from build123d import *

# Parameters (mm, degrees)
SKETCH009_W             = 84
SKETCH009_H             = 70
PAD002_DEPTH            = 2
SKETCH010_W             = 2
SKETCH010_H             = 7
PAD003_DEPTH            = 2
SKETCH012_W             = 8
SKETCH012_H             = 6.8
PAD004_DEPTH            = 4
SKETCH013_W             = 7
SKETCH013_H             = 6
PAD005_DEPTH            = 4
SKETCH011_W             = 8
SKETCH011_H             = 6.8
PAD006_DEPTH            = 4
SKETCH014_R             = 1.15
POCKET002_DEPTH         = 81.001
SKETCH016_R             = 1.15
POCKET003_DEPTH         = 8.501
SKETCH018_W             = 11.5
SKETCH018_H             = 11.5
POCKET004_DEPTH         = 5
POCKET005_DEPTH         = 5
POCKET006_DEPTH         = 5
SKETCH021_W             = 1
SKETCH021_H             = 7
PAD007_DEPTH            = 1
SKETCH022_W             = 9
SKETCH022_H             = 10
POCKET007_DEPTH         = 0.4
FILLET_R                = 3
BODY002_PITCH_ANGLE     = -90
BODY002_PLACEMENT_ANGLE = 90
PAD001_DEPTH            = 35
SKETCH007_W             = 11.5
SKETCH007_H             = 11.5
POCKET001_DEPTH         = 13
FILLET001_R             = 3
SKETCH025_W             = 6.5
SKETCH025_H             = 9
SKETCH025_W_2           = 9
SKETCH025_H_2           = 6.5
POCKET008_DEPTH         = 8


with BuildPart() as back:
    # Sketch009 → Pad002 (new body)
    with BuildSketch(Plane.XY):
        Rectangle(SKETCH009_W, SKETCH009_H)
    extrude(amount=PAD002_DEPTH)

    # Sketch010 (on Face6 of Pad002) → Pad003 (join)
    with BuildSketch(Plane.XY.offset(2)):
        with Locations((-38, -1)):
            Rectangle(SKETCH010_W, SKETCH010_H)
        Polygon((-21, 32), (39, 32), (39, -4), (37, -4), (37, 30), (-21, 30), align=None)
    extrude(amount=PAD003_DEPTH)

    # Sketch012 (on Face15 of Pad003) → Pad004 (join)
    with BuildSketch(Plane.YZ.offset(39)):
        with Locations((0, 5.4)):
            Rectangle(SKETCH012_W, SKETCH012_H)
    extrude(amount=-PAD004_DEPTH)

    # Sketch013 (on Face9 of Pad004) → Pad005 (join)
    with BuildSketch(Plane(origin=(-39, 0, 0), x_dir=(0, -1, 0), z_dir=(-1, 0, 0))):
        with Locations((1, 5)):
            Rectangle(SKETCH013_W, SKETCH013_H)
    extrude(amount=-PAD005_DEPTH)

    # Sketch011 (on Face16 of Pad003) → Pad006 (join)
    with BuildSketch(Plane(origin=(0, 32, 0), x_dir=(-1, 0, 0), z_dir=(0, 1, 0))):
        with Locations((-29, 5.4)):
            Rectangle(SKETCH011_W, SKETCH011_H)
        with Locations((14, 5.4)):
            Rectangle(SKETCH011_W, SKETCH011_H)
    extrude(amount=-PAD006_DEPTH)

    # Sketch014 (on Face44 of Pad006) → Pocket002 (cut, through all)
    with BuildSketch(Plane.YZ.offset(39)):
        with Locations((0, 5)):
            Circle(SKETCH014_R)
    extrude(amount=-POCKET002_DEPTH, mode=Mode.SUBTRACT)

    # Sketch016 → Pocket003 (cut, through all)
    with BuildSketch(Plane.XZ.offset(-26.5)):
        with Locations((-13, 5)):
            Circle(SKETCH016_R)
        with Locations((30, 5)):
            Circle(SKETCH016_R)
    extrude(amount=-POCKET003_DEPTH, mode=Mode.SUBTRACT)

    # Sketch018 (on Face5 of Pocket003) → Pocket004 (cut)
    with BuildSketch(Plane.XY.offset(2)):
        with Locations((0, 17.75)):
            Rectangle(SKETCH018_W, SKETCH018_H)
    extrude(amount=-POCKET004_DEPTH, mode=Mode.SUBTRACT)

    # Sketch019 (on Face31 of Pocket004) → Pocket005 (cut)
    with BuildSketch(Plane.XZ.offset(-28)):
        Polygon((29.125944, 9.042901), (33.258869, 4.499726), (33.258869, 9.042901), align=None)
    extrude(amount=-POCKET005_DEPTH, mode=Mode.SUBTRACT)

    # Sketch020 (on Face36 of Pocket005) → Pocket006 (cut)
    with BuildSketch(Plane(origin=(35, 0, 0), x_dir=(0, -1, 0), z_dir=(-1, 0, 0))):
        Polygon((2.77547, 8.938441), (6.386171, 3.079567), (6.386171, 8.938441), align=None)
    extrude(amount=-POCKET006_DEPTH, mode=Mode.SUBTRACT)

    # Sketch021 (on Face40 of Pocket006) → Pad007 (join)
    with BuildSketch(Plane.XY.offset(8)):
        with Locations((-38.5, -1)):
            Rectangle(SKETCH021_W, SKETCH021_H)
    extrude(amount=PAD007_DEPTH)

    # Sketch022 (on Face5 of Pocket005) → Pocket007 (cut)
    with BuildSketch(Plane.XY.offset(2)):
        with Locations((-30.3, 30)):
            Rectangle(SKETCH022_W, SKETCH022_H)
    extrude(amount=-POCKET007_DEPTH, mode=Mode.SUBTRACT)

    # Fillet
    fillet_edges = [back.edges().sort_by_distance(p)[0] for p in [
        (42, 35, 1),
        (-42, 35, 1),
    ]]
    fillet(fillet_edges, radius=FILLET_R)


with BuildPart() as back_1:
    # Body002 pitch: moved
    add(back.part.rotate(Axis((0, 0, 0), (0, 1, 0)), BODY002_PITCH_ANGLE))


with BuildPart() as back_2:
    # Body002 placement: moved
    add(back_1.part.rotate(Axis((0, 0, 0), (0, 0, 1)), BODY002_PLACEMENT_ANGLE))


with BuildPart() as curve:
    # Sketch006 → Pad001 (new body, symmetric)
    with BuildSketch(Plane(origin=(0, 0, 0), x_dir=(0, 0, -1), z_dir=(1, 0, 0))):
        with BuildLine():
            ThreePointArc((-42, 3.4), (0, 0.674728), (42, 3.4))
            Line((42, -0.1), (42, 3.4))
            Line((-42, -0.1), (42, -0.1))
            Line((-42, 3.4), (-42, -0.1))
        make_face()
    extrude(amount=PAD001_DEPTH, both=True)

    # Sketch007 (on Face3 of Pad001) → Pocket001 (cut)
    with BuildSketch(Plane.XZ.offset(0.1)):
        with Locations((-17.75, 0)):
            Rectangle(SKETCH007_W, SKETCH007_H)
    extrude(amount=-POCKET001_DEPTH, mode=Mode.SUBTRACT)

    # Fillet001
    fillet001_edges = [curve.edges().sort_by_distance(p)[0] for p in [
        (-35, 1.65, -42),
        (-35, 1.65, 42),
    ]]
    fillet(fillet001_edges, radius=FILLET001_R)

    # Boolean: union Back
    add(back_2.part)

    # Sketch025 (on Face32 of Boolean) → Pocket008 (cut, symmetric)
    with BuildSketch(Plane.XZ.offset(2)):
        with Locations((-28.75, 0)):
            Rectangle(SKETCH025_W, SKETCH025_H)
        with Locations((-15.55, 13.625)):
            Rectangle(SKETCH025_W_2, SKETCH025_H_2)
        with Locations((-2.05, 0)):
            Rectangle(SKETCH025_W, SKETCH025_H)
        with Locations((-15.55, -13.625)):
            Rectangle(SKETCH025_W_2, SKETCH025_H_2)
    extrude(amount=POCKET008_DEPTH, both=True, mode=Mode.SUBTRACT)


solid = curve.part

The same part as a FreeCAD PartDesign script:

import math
import FreeCAD as App
import Part
import Sketcher
Q = App.Units.Quantity


def edges_at(feature, points):
    """Names of the edges that pass closest to the given points."""
    edges = feature.Shape.Edges
    near = lambda p: min(range(len(edges)), key=lambda i: edges[i].distToShape(Part.Vertex(*p))[0])
    return sorted({f"Edge{near(p) + 1}" for p in points})

doc = App.newDocument("Part")
params = doc.addObject("Spreadsheet::Sheet", "Params")
for row, (alias, value) in enumerate([
    ("sketch1_width", "84 mm"),
    ("sketch1_height", "70 mm"),
    ("pad1_length", "2 mm"),
    ("sketch2_width", "2 mm"),
    ("sketch2_width2", "60 mm"),
    ("sketch2_height", "7 mm"),
    ("sketch2_height2", "34 mm"),
    ("pad2_length", "2 mm"),
    ("sketch3_width", "8 mm"),
    ("sketch3_height", "6.8 mm"),
    ("pad3_length", "4 mm"),
    ("sketch4_width", "7 mm"),
    ("sketch4_height", "6 mm"),
    ("pad4_length", "4 mm"),
    ("sketch5_width", "8 mm"),
    ("sketch5_height", "6.8 mm"),
    ("pad5_length", "4 mm"),
    ("sketch6_diameter", "2.3 mm"),
    ("sketch7_diameter", "2.3 mm"),
    ("sketch8_width", "11.5 mm"),
    ("pocket3_length", "5 mm"),
    ("pocket4_length", "5 mm"),
    ("pocket5_length", "5 mm"),
    ("sketch11_width", "1 mm"),
    ("sketch11_height", "7 mm"),
    ("pad6_length", "1 mm"),
    ("sketch12_width", "9 mm"),
    ("sketch12_height", "10 mm"),
    ("pocket6_length", "0.4 mm"),
    ("fillet_radius", "3 mm"),
    ("sketch13_height", "84 mm"),
    ("sketch13_width", "3.5 mm"),
    ("pad7_length", "70 mm"),
    ("sketch14_width", "11.5 mm"),
    ("pocket7_length", "13 mm"),
    ("fillet2_radius", "3 mm"),
    ("sketch15_width", "9 mm"),
    ("sketch15_width2", "6.5 mm"),
    ("pocket8_length", "16 mm"),
], start=1):
    params.set(f"A{row}", alias)
    params.set(f"B{row}", "=" + value)
    params.setAlias(f"B{row}", alias)

body = doc.addObject("PartDesign::Body", "Body")

sketch1 = body.newObject("Sketcher::SketchObject", "Sketch")
sketch1.AttachmentSupport = (doc.getObject("XY_Plane"), [""])
sketch1.MapMode = "FlatFace"
sketch1.addGeometry([
    Part.LineSegment(App.Vector(-42, 35, 0), App.Vector(-42, -35, 0)),
    Part.LineSegment(App.Vector(-42, -35, 0), App.Vector(42, -35, 0)),
    Part.LineSegment(App.Vector(42, -35, 0), App.Vector(42, 35, 0)),
    Part.LineSegment(App.Vector(42, 35, 0), App.Vector(-42, 35, 0)),
], False)
sketch1.addConstraint([
    Sketcher.Constraint("Coincident", 0, 2, 1, 1),
    Sketcher.Constraint("Coincident", 1, 2, 2, 1),
    Sketcher.Constraint("Coincident", 2, 2, 3, 1),
    Sketcher.Constraint("Coincident", 3, 2, 0, 1),
    Sketcher.Constraint("Vertical", 0),
    Sketcher.Constraint("Horizontal", 1),
    Sketcher.Constraint("Vertical", 2),
    Sketcher.Constraint("Horizontal", 3),
    Sketcher.Constraint("Symmetric", 0, 2, 2, 2, -1, 1),
    Sketcher.Constraint("DistanceX", 1, 1, 1, 2, Q("84 mm")),
    Sketcher.Constraint("DistanceY", 0, 2, 0, 1, Q("70 mm")),
])
sketch1.setExpression("Constraints[9]", "Params.sketch1_width")
sketch1.setExpression("Constraints[10]", "Params.sketch1_height")
pad1 = body.newObject("PartDesign::Pad", "Pad")
pad1.Profile = sketch1
pad1.setExpression("Length", "Params.pad1_length")

sketch2 = body.newObject("Sketcher::SketchObject", "Sketch001")
sketch2.AttachmentSupport = (doc.getObject("XY_Plane"), [""])
sketch2.MapMode = "FlatFace"
sketch2.AttachmentOffset = App.Placement(App.Vector(0, 0, 2), App.Rotation())
sketch2.addGeometry([
    Part.LineSegment(App.Vector(-39, 2.5, 0), App.Vector(-39, -4.5, 0)),
    Part.LineSegment(App.Vector(-39, -4.5, 0), App.Vector(-37, -4.5, 0)),
    Part.LineSegment(App.Vector(-37, -4.5, 0), App.Vector(-37, 2.5, 0)),
    Part.LineSegment(App.Vector(-37, 2.5, 0), App.Vector(-39, 2.5, 0)),
    Part.LineSegment(App.Vector(39, 32, 0), App.Vector(-21, 32, 0)),
    Part.LineSegment(App.Vector(-21, 32, 0), App.Vector(-21, 30, 0)),
    Part.LineSegment(App.Vector(-21, 30, 0), App.Vector(37, 30, 0)),
    Part.LineSegment(App.Vector(37, 30, 0), App.Vector(37, -4, 0)),
    Part.LineSegment(App.Vector(37, -4, 0), App.Vector(39, -4, 0)),
    Part.LineSegment(App.Vector(39, -4, 0), App.Vector(39, 32, 0)),
], False)
sketch2.addConstraint([
    Sketcher.Constraint("Coincident", 0, 2, 1, 1),
    Sketcher.Constraint("Coincident", 1, 2, 2, 1),
    Sketcher.Constraint("Coincident", 2, 2, 3, 1),
    Sketcher.Constraint("Coincident", 3, 2, 0, 1),
    Sketcher.Constraint("Coincident", 4, 2, 5, 1),
    Sketcher.Constraint("Coincident", 5, 2, 6, 1),
    Sketcher.Constraint("Coincident", 6, 2, 7, 1),
    Sketcher.Constraint("Coincident", 7, 2, 8, 1),
    Sketcher.Constraint("Coincident", 8, 2, 9, 1),
    Sketcher.Constraint("Coincident", 9, 2, 4, 1),
    Sketcher.Constraint("Vertical", 0),
    Sketcher.Constraint("Horizontal", 1),
    Sketcher.Constraint("Vertical", 2),
    Sketcher.Constraint("Horizontal", 3),
    Sketcher.Constraint("Horizontal", 4),
    Sketcher.Constraint("Vertical", 5),
    Sketcher.Constraint("Horizontal", 6),
    Sketcher.Constraint("Vertical", 7),
    Sketcher.Constraint("Horizontal", 8),
    Sketcher.Constraint("Vertical", 9),
    Sketcher.Constraint("Equal", 3, 8),
    Sketcher.Constraint("Equal", 8, 5),
    Sketcher.Constraint("DistanceX", 1, 1, 1, 2, Q("2 mm")),
    Sketcher.Constraint("DistanceX", 4, 2, 4, 1, Q("60 mm")),
    Sketcher.Constraint("DistanceY", 0, 2, 0, 1, Q("7 mm")),
    Sketcher.Constraint("DistanceY", 7, 2, 7, 1, Q("34 mm")),
    Sketcher.Constraint("DistanceX", 0, 2, -1, 1, Q("39 mm")),
    Sketcher.Constraint("DistanceX", 4, 2, -1, 1, Q("21 mm")),
    Sketcher.Constraint("DistanceY", -1, 1, 4, 2, Q("32 mm")),
    Sketcher.Constraint("DistanceY", 0, 2, -1, 1, Q("4.5 mm")),
])
sketch2.setExpression("Constraints[22]", "Params.sketch2_width")
sketch2.setExpression("Constraints[23]", "Params.sketch2_width2")
sketch2.setExpression("Constraints[24]", "Params.sketch2_height")
sketch2.setExpression("Constraints[25]", "Params.sketch2_height2")
pad2 = body.newObject("PartDesign::Pad", "Pad001")
pad2.Profile = sketch2
pad2.setExpression("Length", "Params.pad2_length")

sketch3 = body.newObject("Sketcher::SketchObject", "Sketch002")
sketch3.AttachmentSupport = (doc.getObject("YZ_Plane"), [""])
sketch3.MapMode = "FlatFace"
sketch3.AttachmentOffset = App.Placement(App.Vector(0, 0, 39), App.Rotation())
sketch3.addGeometry([
    Part.LineSegment(App.Vector(-4, 8.8, 0), App.Vector(-4, 2, 0)),
    Part.LineSegment(App.Vector(-4, 2, 0), App.Vector(4, 2, 0)),
    Part.LineSegment(App.Vector(4, 2, 0), App.Vector(4, 8.8, 0)),
    Part.LineSegment(App.Vector(4, 8.8, 0), App.Vector(-4, 8.8, 0)),
], False)
sketch3.addConstraint([
    Sketcher.Constraint("Coincident", 0, 2, 1, 1),
    Sketcher.Constraint("Coincident", 1, 2, 2, 1),
    Sketcher.Constraint("Coincident", 2, 2, 3, 1),
    Sketcher.Constraint("Coincident", 3, 2, 0, 1),
    Sketcher.Constraint("Vertical", 0),
    Sketcher.Constraint("Horizontal", 1),
    Sketcher.Constraint("Vertical", 2),
    Sketcher.Constraint("Horizontal", 3),
    Sketcher.Constraint("DistanceX", 1, 1, 1, 2, Q("8 mm")),
    Sketcher.Constraint("DistanceY", 0, 2, 0, 1, Q("6.8 mm")),
    Sketcher.Constraint("DistanceX", 0, 2, -1, 1, Q("4 mm")),
    Sketcher.Constraint("DistanceY", -1, 1, 0, 2, Q("2 mm")),
])
sketch3.setExpression("Constraints[8]", "Params.sketch3_width")
sketch3.setExpression("Constraints[9]", "Params.sketch3_height")
pad3 = body.newObject("PartDesign::Pad", "Pad002")
pad3.Profile = sketch3
pad3.setExpression("Length", "Params.pad3_length")
pad3.Reversed = True

sketch4 = body.newObject("Sketcher::SketchObject", "Sketch003")
sketch4.AttachmentSupport = (doc.getObject("YZ_Plane"), [""])
sketch4.MapMode = "FlatFace"
sketch4.AttachmentOffset = App.Placement(App.Vector(0, 0, -39), App.Rotation())
sketch4.addGeometry([
    Part.LineSegment(App.Vector(2.5, 8, 0), App.Vector(2.5, 2, 0)),
    Part.LineSegment(App.Vector(2.5, 2, 0), App.Vector(-4.5, 2, 0)),
    Part.LineSegment(App.Vector(-4.5, 2, 0), App.Vector(-4.5, 8, 0)),
    Part.LineSegment(App.Vector(-4.5, 8, 0), App.Vector(2.5, 8, 0)),
], False)
sketch4.addConstraint([
    Sketcher.Constraint("Coincident", 0, 2, 1, 1),
    Sketcher.Constraint("Coincident", 1, 2, 2, 1),
    Sketcher.Constraint("Coincident", 2, 2, 3, 1),
    Sketcher.Constraint("Coincident", 3, 2, 0, 1),
    Sketcher.Constraint("Vertical", 0),
    Sketcher.Constraint("Horizontal", 1),
    Sketcher.Constraint("Vertical", 2),
    Sketcher.Constraint("Horizontal", 3),
    Sketcher.Constraint("DistanceX", 1, 2, 1, 1, Q("7 mm")),
    Sketcher.Constraint("DistanceY", 0, 2, 0, 1, Q("6 mm")),
    Sketcher.Constraint("DistanceY", -1, 1, 0, 2, Q("2 mm")),
    Sketcher.Constraint("DistanceX", -1, 1, 0, 2, Q("2.5 mm")),
])
sketch4.setExpression("Constraints[8]", "Params.sketch4_width")
sketch4.setExpression("Constraints[9]", "Params.sketch4_height")
pad4 = body.newObject("PartDesign::Pad", "Pad003")
pad4.Profile = sketch4
pad4.setExpression("Length", "Params.pad4_length")

sketch5 = body.newObject("Sketcher::SketchObject", "Sketch004")
sketch5.AttachmentSupport = (doc.getObject("XZ_Plane"), [""])
sketch5.MapMode = "FlatFace"
sketch5.AttachmentOffset = App.Placement(App.Vector(0, 0, -32), App.Rotation())
sketch5.addGeometry([
    Part.LineSegment(App.Vector(33, 8.8, 0), App.Vector(33, 2, 0)),
    Part.LineSegment(App.Vector(33, 2, 0), App.Vector(25, 2, 0)),
    Part.LineSegment(App.Vector(25, 2, 0), App.Vector(25, 8.8, 0)),
    Part.LineSegment(App.Vector(25, 8.8, 0), App.Vector(33, 8.8, 0)),
    Part.LineSegment(App.Vector(-10, 8.8, 0), App.Vector(-10, 2, 0)),
    Part.LineSegment(App.Vector(-10, 2, 0), App.Vector(-18, 2, 0)),
    Part.LineSegment(App.Vector(-18, 2, 0), App.Vector(-18, 8.8, 0)),
    Part.LineSegment(App.Vector(-18, 8.8, 0), App.Vector(-10, 8.8, 0)),
], False)
sketch5.addConstraint([
    Sketcher.Constraint("Coincident", 0, 2, 1, 1),
    Sketcher.Constraint("Coincident", 1, 2, 2, 1),
    Sketcher.Constraint("Coincident", 2, 2, 3, 1),
    Sketcher.Constraint("Coincident", 3, 2, 0, 1),
    Sketcher.Constraint("Coincident", 4, 2, 5, 1),
    Sketcher.Constraint("Coincident", 5, 2, 6, 1),
    Sketcher.Constraint("Coincident", 6, 2, 7, 1),
    Sketcher.Constraint("Coincident", 7, 2, 4, 1),
    Sketcher.Constraint("Vertical", 0),
    Sketcher.Constraint("Horizontal", 1),
    Sketcher.Constraint("Vertical", 2),
    Sketcher.Constraint("Horizontal", 3),
    Sketcher.Constraint("Vertical", 4),
    Sketcher.Constraint("Horizontal", 5),
    Sketcher.Constraint("Vertical", 6),
    Sketcher.Constraint("Horizontal", 7),
    Sketcher.Constraint("Horizontal", 1, 2, 4, 2),
    Sketcher.Constraint("Horizontal", 3, 2, 6, 2),
    Sketcher.Constraint("Equal", 3, 5),
    Sketcher.Constraint("DistanceX", 1, 2, 1, 1, Q("8 mm")),
    Sketcher.Constraint("DistanceY", 0, 2, 0, 1, Q("6.8 mm")),
    Sketcher.Constraint("DistanceX", -1, 1, 0, 2, Q("33 mm")),
    Sketcher.Constraint("DistanceY", -1, 1, 0, 2, Q("2 mm")),
    Sketcher.Constraint("DistanceX", 4, 2, -1, 1, Q("10 mm")),
])
sketch5.setExpression("Constraints[19]", "Params.sketch5_width")
sketch5.setExpression("Constraints[20]", "Params.sketch5_height")
pad5 = body.newObject("PartDesign::Pad", "Pad004")
pad5.Profile = sketch5
pad5.setExpression("Length", "Params.pad5_length")

sketch6 = body.newObject("Sketcher::SketchObject", "Sketch005")
sketch6.AttachmentSupport = (doc.getObject("YZ_Plane"), [""])
sketch6.MapMode = "FlatFace"
sketch6.AttachmentOffset = App.Placement(App.Vector(0, 0, 39), App.Rotation())
sketch6.addGeometry(Part.Circle(App.Vector(0, 5, 0), App.Vector(0, 0, 1), 1.15), False)
sketch6.addConstraint([
    Sketcher.Constraint("PointOnObject", 0, 3, -2),
    Sketcher.Constraint("Diameter", 0, Q("2.3 mm")),
    Sketcher.Constraint("DistanceY", -1, 1, 0, 3, Q("5 mm")),
])
sketch6.setExpression("Constraints[1]", "Params.sketch6_diameter")
pocket1 = body.newObject("PartDesign::Pocket", "Pocket")
pocket1.Profile = sketch6
pocket1.Type = "ThroughAll"

sketch7 = body.newObject("Sketcher::SketchObject", "Sketch006")
sketch7.AttachmentSupport = (doc.getObject("XZ_Plane"), [""])
sketch7.MapMode = "FlatFace"
sketch7.AttachmentOffset = App.Placement(App.Vector(0, 0, -26.5), App.Rotation())
sketch7.addGeometry([
    Part.Circle(App.Vector(-13, 5, 0), App.Vector(0, 0, 1), 1.15),
    Part.Circle(App.Vector(30, 5, 0), App.Vector(0, 0, 1), 1.15),
], False)
sketch7.addConstraint([
    Sketcher.Constraint("Equal", 0, 1),
    Sketcher.Constraint("Horizontal", 0, 3, 1, 3),
    Sketcher.Constraint("Diameter", 0, Q("2.3 mm")),
    Sketcher.Constraint("DistanceX", 0, 3, -1, 1, Q("13 mm")),
    Sketcher.Constraint("DistanceY", -1, 1, 0, 3, Q("5 mm")),
    Sketcher.Constraint("DistanceX", -1, 1, 1, 3, Q("30 mm")),
])
sketch7.setExpression("Constraints[2]", "Params.sketch7_diameter")
pocket2 = body.newObject("PartDesign::Pocket", "Pocket001")
pocket2.Profile = sketch7
pocket2.Type = "ThroughAll"

sketch8 = body.newObject("Sketcher::SketchObject", "Sketch007")
sketch8.AttachmentSupport = (doc.getObject("XY_Plane"), [""])
sketch8.MapMode = "FlatFace"
sketch8.AttachmentOffset = App.Placement(App.Vector(0, 0, 2), App.Rotation())
sketch8.addGeometry([
    Part.LineSegment(App.Vector(-5.75, 23.5, 0), App.Vector(-5.75, 12, 0)),
    Part.LineSegment(App.Vector(-5.75, 12, 0), App.Vector(5.75, 12, 0)),
    Part.LineSegment(App.Vector(5.75, 12, 0), App.Vector(5.75, 23.5, 0)),
    Part.LineSegment(App.Vector(5.75, 23.5, 0), App.Vector(-5.75, 23.5, 0)),
], False)
sketch8.addConstraint([
    Sketcher.Constraint("Coincident", 0, 2, 1, 1),
    Sketcher.Constraint("Coincident", 1, 2, 2, 1),
    Sketcher.Constraint("Coincident", 2, 2, 3, 1),
    Sketcher.Constraint("Coincident", 3, 2, 0, 1),
    Sketcher.Constraint("Vertical", 0),
    Sketcher.Constraint("Horizontal", 1),
    Sketcher.Constraint("Vertical", 2),
    Sketcher.Constraint("Horizontal", 3),
    Sketcher.Constraint("Equal", 3, 0),
    Sketcher.Constraint("DistanceX", 1, 1, 1, 2, Q("11.5 mm")),
    Sketcher.Constraint("DistanceY", -1, 1, 0, 2, Q("12 mm")),
    Sketcher.Constraint("DistanceX", 0, 2, -1, 1, Q("5.75 mm")),
])
sketch8.setExpression("Constraints[9]", "Params.sketch8_width")
pocket3 = body.newObject("PartDesign::Pocket", "Pocket002")
pocket3.Profile = sketch8
pocket3.setExpression("Length", "Params.pocket3_length")

sketch9 = body.newObject("Sketcher::SketchObject", "Sketch008")
sketch9.AttachmentSupport = (doc.getObject("XZ_Plane"), [""])
sketch9.MapMode = "FlatFace"
sketch9.AttachmentOffset = App.Placement(App.Vector(0, 0, -28), App.Rotation())
sketch9.addGeometry([
    Part.LineSegment(App.Vector(29.125944, 9.042901, 0), App.Vector(33.258869, 4.499726, 0)),
    Part.LineSegment(App.Vector(33.258869, 4.499726, 0), App.Vector(33.258869, 9.042901, 0)),
    Part.LineSegment(App.Vector(33.258869, 9.042901, 0), App.Vector(29.125944, 9.042901, 0)),
], False)
sketch9.addConstraint([
    Sketcher.Constraint("Coincident", 0, 2, 1, 1),
    Sketcher.Constraint("Coincident", 1, 2, 2, 1),
    Sketcher.Constraint("Coincident", 2, 2, 0, 1),
    Sketcher.Constraint("Vertical", 1),
    Sketcher.Constraint("Horizontal", 2),
    Sketcher.Constraint("DistanceY", -1, 1, 1, 2, Q("9.042901 mm")),
    Sketcher.Constraint("DistanceX", 2, 2, 2, 1, Q("4.132925 mm")),
    Sketcher.Constraint("DistanceY", 1, 1, 1, 2, Q("4.543175 mm")),
    Sketcher.Constraint("DistanceX", -1, 1, 0, 2, Q("33.258869 mm")),
])
pocket4 = body.newObject("PartDesign::Pocket", "Pocket003")
pocket4.Profile = sketch9
pocket4.setExpression("Length", "Params.pocket4_length")

sketch10 = body.newObject("Sketcher::SketchObject", "Sketch009")
sketch10.AttachmentSupport = (doc.getObject("YZ_Plane"), [""])
sketch10.MapMode = "FlatFace"
sketch10.AttachmentOffset = App.Placement(App.Vector(0, 0, 35), App.Rotation())
sketch10.addGeometry([
    Part.LineSegment(App.Vector(-2.77547, 8.938441, 0), App.Vector(-6.386171, 3.079567, 0)),
    Part.LineSegment(App.Vector(-6.386171, 3.079567, 0), App.Vector(-6.386171, 8.938441, 0)),
    Part.LineSegment(App.Vector(-6.386171, 8.938441, 0), App.Vector(-2.77547, 8.938441, 0)),
], False)
sketch10.addConstraint([
    Sketcher.Constraint("Coincident", 0, 2, 1, 1),
    Sketcher.Constraint("Coincident", 1, 2, 2, 1),
    Sketcher.Constraint("Coincident", 2, 2, 0, 1),
    Sketcher.Constraint("Vertical", 1),
    Sketcher.Constraint("Horizontal", 2),
    Sketcher.Constraint("DistanceX", 2, 1, 2, 2, Q("3.610701 mm")),
    Sketcher.Constraint("Distance", 0, Q("6.882119 mm")),
    Sketcher.Constraint("DistanceX", 0, 2, -1, 1, Q("6.386171 mm")),
    Sketcher.Constraint("DistanceY", -1, 1, 1, 2, Q("8.938441 mm")),
])
pocket5 = body.newObject("PartDesign::Pocket", "Pocket004")
pocket5.Profile = sketch10
pocket5.setExpression("Length", "Params.pocket5_length")
pocket5.Reversed = True

sketch11 = body.newObject("Sketcher::SketchObject", "Sketch010")
sketch11.AttachmentSupport = (doc.getObject("XY_Plane"), [""])
sketch11.MapMode = "FlatFace"
sketch11.AttachmentOffset = App.Placement(App.Vector(0, 0, 8), App.Rotation())
sketch11.addGeometry([
    Part.LineSegment(App.Vector(-39, 2.5, 0), App.Vector(-39, -4.5, 0)),
    Part.LineSegment(App.Vector(-39, -4.5, 0), App.Vector(-38, -4.5, 0)),
    Part.LineSegment(App.Vector(-38, -4.5, 0), App.Vector(-38, 2.5, 0)),
    Part.LineSegment(App.Vector(-38, 2.5, 0), App.Vector(-39, 2.5, 0)),
], False)
sketch11.addConstraint([
    Sketcher.Constraint("Coincident", 0, 2, 1, 1),
    Sketcher.Constraint("Coincident", 1, 2, 2, 1),
    Sketcher.Constraint("Coincident", 2, 2, 3, 1),
    Sketcher.Constraint("Coincident", 3, 2, 0, 1),
    Sketcher.Constraint("Vertical", 0),
    Sketcher.Constraint("Horizontal", 1),
    Sketcher.Constraint("Vertical", 2),
    Sketcher.Constraint("Horizontal", 3),
    Sketcher.Constraint("DistanceX", 1, 1, 1, 2, Q("1 mm")),
    Sketcher.Constraint("DistanceY", 0, 2, 0, 1, Q("7 mm")),
    Sketcher.Constraint("DistanceX", 0, 2, -1, 1, Q("39 mm")),
    Sketcher.Constraint("DistanceY", 0, 2, -1, 1, Q("4.5 mm")),
])
sketch11.setExpression("Constraints[8]", "Params.sketch11_width")
sketch11.setExpression("Constraints[9]", "Params.sketch11_height")
pad6 = body.newObject("PartDesign::Pad", "Pad005")
pad6.Profile = sketch11
pad6.setExpression("Length", "Params.pad6_length")

sketch12 = body.newObject("Sketcher::SketchObject", "Sketch011")
sketch12.AttachmentSupport = (doc.getObject("XY_Plane"), [""])
sketch12.MapMode = "FlatFace"
sketch12.AttachmentOffset = App.Placement(App.Vector(0, 0, 2), App.Rotation())
sketch12.addGeometry([
    Part.LineSegment(App.Vector(-34.8, 35, 0), App.Vector(-34.8, 25, 0)),
    Part.LineSegment(App.Vector(-34.8, 25, 0), App.Vector(-25.8, 25, 0)),
    Part.LineSegment(App.Vector(-25.8, 25, 0), App.Vector(-25.8, 35, 0)),
    Part.LineSegment(App.Vector(-25.8, 35, 0), App.Vector(-34.8, 35, 0)),
], False)
sketch12.addConstraint([
    Sketcher.Constraint("Coincident", 0, 2, 1, 1),
    Sketcher.Constraint("Coincident", 1, 2, 2, 1),
    Sketcher.Constraint("Coincident", 2, 2, 3, 1),
    Sketcher.Constraint("Coincident", 3, 2, 0, 1),
    Sketcher.Constraint("Vertical", 0),
    Sketcher.Constraint("Horizontal", 1),
    Sketcher.Constraint("Vertical", 2),
    Sketcher.Constraint("Horizontal", 3),
    Sketcher.Constraint("DistanceX", 1, 1, 1, 2, Q("9 mm")),
    Sketcher.Constraint("DistanceY", 0, 2, 0, 1, Q("10 mm")),
    Sketcher.Constraint("DistanceY", -1, 1, 0, 2, Q("25 mm")),
    Sketcher.Constraint("DistanceX", 0, 2, -1, 1, Q("34.8 mm")),
])
sketch12.setExpression("Constraints[8]", "Params.sketch12_width")
sketch12.setExpression("Constraints[9]", "Params.sketch12_height")
pocket6 = body.newObject("PartDesign::Pocket", "Pocket005")
pocket6.Profile = sketch12
pocket6.setExpression("Length", "Params.pocket6_length")
doc.recompute()

fillet = body.newObject("PartDesign::Fillet", "Fillet")
fillet.Base = (pocket6, edges_at(pocket6, [(42, 35, 1), (-42, 35, 1)]))
fillet.setExpression("Radius", "Params.fillet_radius")
body2 = doc.addObject("PartDesign::Body", "Body001")
doc.recompute()

body.Placement = App.Placement(App.Vector(0, 0, 0), App.Rotation(App.Vector(0, 1, 0), 270))
boolean = body2.newObject("PartDesign::Boolean", "Boolean")
boolean.Type = "Fuse"
boolean.addObjects([body])
body3 = doc.addObject("PartDesign::Body", "Body002")
doc.recompute()

body2.Placement = App.Placement(App.Vector(0, 0, 0), App.Rotation(App.Vector(0, 0, 1), 90))
boolean2 = body3.newObject("PartDesign::Boolean", "Boolean001")
boolean2.Type = "Fuse"
boolean2.addObjects([body2])
body4 = doc.addObject("PartDesign::Body", "Body003")

sketch13 = body4.newObject("Sketcher::SketchObject", "Sketch012")
sketch13.AttachmentSupport = (doc.getObject("YZ_Plane003"), [""])
sketch13.MapMode = "FlatFace"
sketch13.addGeometry([
    Part.ArcOfCircle(Part.Circle(App.Vector(325.674784, 0, 0), App.Vector(0, 0, 1), 325.000056), math.radians(172.574858), math.radians(187.425142)),
    Part.LineSegment(App.Vector(3.4, 42, 0), App.Vector(-0.1, 42, 0)),
    Part.LineSegment(App.Vector(-0.1, 42, 0), App.Vector(-0.1, -42, 0)),
    Part.LineSegment(App.Vector(-0.1, -42, 0), App.Vector(3.4, -42, 0)),
], False)
sketch13.addConstraint([
    Sketcher.Constraint("Coincident", 0, 1, 1, 1),
    Sketcher.Constraint("Coincident", 1, 2, 2, 1),
    Sketcher.Constraint("Coincident", 2, 2, 3, 1),
    Sketcher.Constraint("Coincident", 3, 2, 0, 2),
    Sketcher.Constraint("Horizontal", 1),
    Sketcher.Constraint("Vertical", 2),
    Sketcher.Constraint("Horizontal", 3),
    Sketcher.Constraint("Symmetric", 0, 1, 3, 2, -1),
    Sketcher.Constraint("DistanceY", 2, 2, 2, 1, Q("84 mm")),
    Sketcher.Constraint("DistanceX", 1, 2, 1, 1, Q("3.5 mm")),
    Sketcher.Constraint("DistanceX", -1, 1, 0, 1, Q("3.4 mm")),
    Sketcher.Constraint("Radius", 0, Q("325.000056 mm")),
])
sketch13.setExpression("Constraints[8]", "Params.sketch13_height")
sketch13.setExpression("Constraints[9]", "Params.sketch13_width")
pad7 = body4.newObject("PartDesign::Pad", "Pad006")
pad7.Profile = sketch13
pad7.setExpression("Length", "Params.pad7_length")
pad7.Midplane = True

sketch14 = body4.newObject("Sketcher::SketchObject", "Sketch013")
sketch14.AttachmentSupport = (doc.getObject("XZ_Plane003"), [""])
sketch14.MapMode = "FlatFace"
sketch14.AttachmentOffset = App.Placement(App.Vector(0, 0, 0.1), App.Rotation())
sketch14.addGeometry([
    Part.LineSegment(App.Vector(-23.5, 5.75, 0), App.Vector(-23.5, -5.75, 0)),
    Part.LineSegment(App.Vector(-23.5, -5.75, 0), App.Vector(-12, -5.75, 0)),
    Part.LineSegment(App.Vector(-12, -5.75, 0), App.Vector(-12, 5.75, 0)),
    Part.LineSegment(App.Vector(-12, 5.75, 0), App.Vector(-23.5, 5.75, 0)),
], False)
sketch14.addConstraint([
    Sketcher.Constraint("Coincident", 0, 2, 1, 1),
    Sketcher.Constraint("Coincident", 1, 2, 2, 1),
    Sketcher.Constraint("Coincident", 2, 2, 3, 1),
    Sketcher.Constraint("Coincident", 3, 2, 0, 1),
    Sketcher.Constraint("Vertical", 0),
    Sketcher.Constraint("Horizontal", 1),
    Sketcher.Constraint("Vertical", 2),
    Sketcher.Constraint("Horizontal", 3),
    Sketcher.Constraint("Equal", 3, 0),
    Sketcher.Constraint("DistanceX", 1, 1, 1, 2, Q("11.5 mm")),
    Sketcher.Constraint("DistanceX", 1, 2, -1, 1, Q("12 mm")),
    Sketcher.Constraint("DistanceY", 0, 2, -1, 1, Q("5.75 mm")),
])
sketch14.setExpression("Constraints[9]", "Params.sketch14_width")
pocket7 = body4.newObject("PartDesign::Pocket", "Pocket006")
pocket7.Profile = sketch14
pocket7.setExpression("Length", "Params.pocket7_length")
doc.recompute()

fillet2 = body4.newObject("PartDesign::Fillet", "Fillet001")
fillet2.Base = (pocket7, edges_at(pocket7, [(-35, 1.65, -42), (-35, 1.65, 42)]))
fillet2.setExpression("Radius", "Params.fillet2_radius")
doc.recompute()

boolean3 = body4.newObject("PartDesign::Boolean", "Boolean002")
boolean3.Type = "Fuse"
boolean3.addObjects([body3])

sketch15 = body4.newObject("Sketcher::SketchObject", "Sketch014")
sketch15.AttachmentSupport = (doc.getObject("XZ_Plane003"), [""])
sketch15.MapMode = "FlatFace"
sketch15.AttachmentOffset = App.Placement(App.Vector(0, 0, 2), App.Rotation())
sketch15.addGeometry([
    Part.LineSegment(App.Vector(-32, 4.5, 0), App.Vector(-32, -4.5, 0)),
    Part.LineSegment(App.Vector(-32, -4.5, 0), App.Vector(-25.5, -4.5, 0)),
    Part.LineSegment(App.Vector(-25.5, -4.5, 0), App.Vector(-25.5, 4.5, 0)),
    Part.LineSegment(App.Vector(-25.5, 4.5, 0), App.Vector(-32, 4.5, 0)),
    Part.LineSegment(App.Vector(-20.05, 16.875, 0), App.Vector(-20.05, 10.375, 0)),
    Part.LineSegment(App.Vector(-20.05, 10.375, 0), App.Vector(-11.05, 10.375, 0)),
    Part.LineSegment(App.Vector(-11.05, 10.375, 0), App.Vector(-11.05, 16.875, 0)),
    Part.LineSegment(App.Vector(-11.05, 16.875, 0), App.Vector(-20.05, 16.875, 0)),
    Part.LineSegment(App.Vector(-5.3, 4.5, 0), App.Vector(-5.3, -4.5, 0)),
    Part.LineSegment(App.Vector(-5.3, -4.5, 0), App.Vector(1.2, -4.5, 0)),
    Part.LineSegment(App.Vector(1.2, -4.5, 0), App.Vector(1.2, 4.5, 0)),
    Part.LineSegment(App.Vector(1.2, 4.5, 0), App.Vector(-5.3, 4.5, 0)),
    Part.LineSegment(App.Vector(-20.05, -10.375, 0), App.Vector(-20.05, -16.875, 0)),
    Part.LineSegment(App.Vector(-20.05, -16.875, 0), App.Vector(-11.05, -16.875, 0)),
    Part.LineSegment(App.Vector(-11.05, -16.875, 0), App.Vector(-11.05, -10.375, 0)),
    Part.LineSegment(App.Vector(-11.05, -10.375, 0), App.Vector(-20.05, -10.375, 0)),
], False)
sketch15.addConstraint([
    Sketcher.Constraint("Coincident", 0, 2, 1, 1),
    Sketcher.Constraint("Coincident", 1, 2, 2, 1),
    Sketcher.Constraint("Coincident", 2, 2, 3, 1),
    Sketcher.Constraint("Coincident", 3, 2, 0, 1),
    Sketcher.Constraint("Coincident", 4, 2, 5, 1),
    Sketcher.Constraint("Coincident", 5, 2, 6, 1),
    Sketcher.Constraint("Coincident", 6, 2, 7, 1),
    Sketcher.Constraint("Coincident", 7, 2, 4, 1),
    Sketcher.Constraint("Coincident", 8, 2, 9, 1),
    Sketcher.Constraint("Coincident", 9, 2, 10, 1),
    Sketcher.Constraint("Coincident", 10, 2, 11, 1),
    Sketcher.Constraint("Coincident", 11, 2, 8, 1),
    Sketcher.Constraint("Coincident", 12, 2, 13, 1),
    Sketcher.Constraint("Coincident", 13, 2, 14, 1),
    Sketcher.Constraint("Coincident", 14, 2, 15, 1),
    Sketcher.Constraint("Coincident", 15, 2, 12, 1),
    Sketcher.Constraint("Vertical", 0),
    Sketcher.Constraint("Horizontal", 1),
    Sketcher.Constraint("Vertical", 2),
    Sketcher.Constraint("Horizontal", 3),
    Sketcher.Constraint("Vertical", 4),
    Sketcher.Constraint("Horizontal", 5),
    Sketcher.Constraint("Vertical", 6),
    Sketcher.Constraint("Horizontal", 7),
    Sketcher.Constraint("Vertical", 8),
    Sketcher.Constraint("Horizontal", 9),
    Sketcher.Constraint("Vertical", 10),
    Sketcher.Constraint("Horizontal", 11),
    Sketcher.Constraint("Vertical", 12),
    Sketcher.Constraint("Horizontal", 13),
    Sketcher.Constraint("Vertical", 14),
    Sketcher.Constraint("Horizontal", 15),
    Sketcher.Constraint("Symmetric", 7, 2, 12, 2, -1),
    Sketcher.Constraint("Symmetric", 5, 2, 14, 2, -1),
    Sketcher.Constraint("Horizontal", 1, 2, 8, 2),
    Sketcher.Constraint("Horizontal", 3, 2, 10, 2),
    Sketcher.Constraint("Equal", 3, 9),
    Sketcher.Constraint("Equal", 15, 0),
    Sketcher.Constraint("Equal", 11, 4),
    Sketcher.Constraint("DistanceX", 5, 1, 5, 2, Q("9 mm")),
    Sketcher.Constraint("DistanceX", 1, 1, 1, 2, Q("6.5 mm")),
    Sketcher.Constraint("DistanceX", 0, 2, -1, 1, Q("32 mm")),
    Sketcher.Constraint("DistanceY", 0, 2, -1, 1, Q("4.5 mm")),
    Sketcher.Constraint("DistanceX", 8, 2, -1, 1, Q("5.3 mm")),
    Sketcher.Constraint("DistanceX", 4, 2, -1, 1, Q("20.05 mm")),
    Sketcher.Constraint("DistanceY", -1, 1, 4, 2, Q("10.375 mm")),
])
sketch15.setExpression("Constraints[39]", "Params.sketch15_width")
sketch15.setExpression("Constraints[40]", "Params.sketch15_width2")
pocket8 = body4.newObject("PartDesign::Pocket", "Pocket007")
pocket8.Profile = sketch15
pocket8.setExpression("Length", "Params.pocket8_length")
pocket8.Midplane = True

doc.recompute()
